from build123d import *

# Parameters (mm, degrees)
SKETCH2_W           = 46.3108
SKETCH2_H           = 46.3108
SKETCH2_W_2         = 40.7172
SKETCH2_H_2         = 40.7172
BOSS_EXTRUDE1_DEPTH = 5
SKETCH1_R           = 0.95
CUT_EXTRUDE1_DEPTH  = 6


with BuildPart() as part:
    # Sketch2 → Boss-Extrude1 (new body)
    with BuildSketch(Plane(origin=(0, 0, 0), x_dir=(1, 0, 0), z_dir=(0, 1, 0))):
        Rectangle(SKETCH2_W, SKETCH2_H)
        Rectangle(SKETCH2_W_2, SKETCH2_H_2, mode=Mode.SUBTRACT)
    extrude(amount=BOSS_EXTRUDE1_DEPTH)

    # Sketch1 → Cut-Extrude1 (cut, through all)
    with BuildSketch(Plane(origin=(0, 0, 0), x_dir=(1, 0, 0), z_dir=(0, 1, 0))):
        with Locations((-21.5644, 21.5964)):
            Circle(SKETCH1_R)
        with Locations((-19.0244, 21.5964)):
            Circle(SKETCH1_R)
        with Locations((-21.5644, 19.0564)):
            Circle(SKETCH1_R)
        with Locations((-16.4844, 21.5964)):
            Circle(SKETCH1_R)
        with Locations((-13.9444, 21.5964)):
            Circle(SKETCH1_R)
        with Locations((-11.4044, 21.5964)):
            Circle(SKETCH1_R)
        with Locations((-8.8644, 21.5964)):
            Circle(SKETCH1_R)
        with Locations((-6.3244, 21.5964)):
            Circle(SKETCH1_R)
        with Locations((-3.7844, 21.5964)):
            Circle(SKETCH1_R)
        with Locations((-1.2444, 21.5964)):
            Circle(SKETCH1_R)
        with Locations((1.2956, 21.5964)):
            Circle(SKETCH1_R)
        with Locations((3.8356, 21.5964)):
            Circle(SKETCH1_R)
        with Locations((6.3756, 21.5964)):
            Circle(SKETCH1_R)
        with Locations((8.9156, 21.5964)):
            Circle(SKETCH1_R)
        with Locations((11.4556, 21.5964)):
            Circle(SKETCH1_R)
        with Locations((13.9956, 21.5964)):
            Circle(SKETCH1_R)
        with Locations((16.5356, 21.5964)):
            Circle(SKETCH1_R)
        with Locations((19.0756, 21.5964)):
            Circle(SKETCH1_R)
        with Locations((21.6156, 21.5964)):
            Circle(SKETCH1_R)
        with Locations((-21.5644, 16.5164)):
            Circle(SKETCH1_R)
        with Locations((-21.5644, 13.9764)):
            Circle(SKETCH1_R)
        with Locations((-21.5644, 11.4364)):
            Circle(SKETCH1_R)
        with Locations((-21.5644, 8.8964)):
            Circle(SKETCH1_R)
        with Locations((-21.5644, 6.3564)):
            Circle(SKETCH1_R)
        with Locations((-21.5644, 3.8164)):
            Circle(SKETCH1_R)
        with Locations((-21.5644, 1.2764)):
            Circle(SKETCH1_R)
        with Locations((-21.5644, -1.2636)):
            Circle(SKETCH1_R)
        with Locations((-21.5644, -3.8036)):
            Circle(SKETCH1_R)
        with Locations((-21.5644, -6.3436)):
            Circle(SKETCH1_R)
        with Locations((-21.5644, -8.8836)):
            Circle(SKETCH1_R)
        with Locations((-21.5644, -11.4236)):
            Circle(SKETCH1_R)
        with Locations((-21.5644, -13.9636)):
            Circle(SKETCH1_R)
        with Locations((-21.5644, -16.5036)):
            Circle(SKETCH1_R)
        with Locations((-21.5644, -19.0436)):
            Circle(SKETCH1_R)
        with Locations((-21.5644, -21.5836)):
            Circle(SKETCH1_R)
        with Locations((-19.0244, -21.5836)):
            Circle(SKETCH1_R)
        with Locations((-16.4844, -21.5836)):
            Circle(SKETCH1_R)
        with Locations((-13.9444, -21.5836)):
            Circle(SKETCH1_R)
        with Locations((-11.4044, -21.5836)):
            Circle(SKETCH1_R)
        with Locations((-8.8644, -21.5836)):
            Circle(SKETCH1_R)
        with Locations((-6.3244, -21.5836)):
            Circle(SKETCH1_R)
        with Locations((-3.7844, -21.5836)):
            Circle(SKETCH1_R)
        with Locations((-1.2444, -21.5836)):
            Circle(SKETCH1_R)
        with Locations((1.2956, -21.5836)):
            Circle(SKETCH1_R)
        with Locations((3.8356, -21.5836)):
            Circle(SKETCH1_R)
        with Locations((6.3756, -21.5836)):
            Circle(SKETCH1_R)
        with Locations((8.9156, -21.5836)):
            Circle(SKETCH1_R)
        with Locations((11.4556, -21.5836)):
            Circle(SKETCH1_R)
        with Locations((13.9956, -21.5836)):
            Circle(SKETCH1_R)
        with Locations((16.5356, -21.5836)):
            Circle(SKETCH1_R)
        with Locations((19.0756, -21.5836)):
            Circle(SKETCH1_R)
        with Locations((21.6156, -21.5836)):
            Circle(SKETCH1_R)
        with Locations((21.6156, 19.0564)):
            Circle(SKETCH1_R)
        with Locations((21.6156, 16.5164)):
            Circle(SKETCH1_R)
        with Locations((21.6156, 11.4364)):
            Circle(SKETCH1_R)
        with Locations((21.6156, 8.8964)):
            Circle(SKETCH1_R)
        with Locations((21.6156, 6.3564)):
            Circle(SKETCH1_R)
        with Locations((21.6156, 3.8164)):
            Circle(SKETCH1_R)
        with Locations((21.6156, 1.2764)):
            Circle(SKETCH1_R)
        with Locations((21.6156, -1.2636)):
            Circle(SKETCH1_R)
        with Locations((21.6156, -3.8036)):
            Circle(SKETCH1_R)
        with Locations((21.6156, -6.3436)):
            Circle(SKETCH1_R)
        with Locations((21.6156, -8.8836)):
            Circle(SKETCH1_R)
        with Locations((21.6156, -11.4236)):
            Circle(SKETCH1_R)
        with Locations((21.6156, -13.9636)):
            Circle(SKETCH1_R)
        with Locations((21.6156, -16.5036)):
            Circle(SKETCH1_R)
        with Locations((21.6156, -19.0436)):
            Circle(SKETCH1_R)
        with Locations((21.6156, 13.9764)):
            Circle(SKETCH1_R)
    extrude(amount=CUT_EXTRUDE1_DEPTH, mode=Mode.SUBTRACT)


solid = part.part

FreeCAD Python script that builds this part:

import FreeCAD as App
import Part
import Sketcher
Q = App.Units.Quantity

doc = App.newDocument("Part")
params = doc.addObject("Spreadsheet::Sheet", "Params")
for row, (alias, value) in enumerate([
    ("pad1_length", "5 mm"),
    ("sketch2_diameter", "1.9 mm"),
], start=1):
    params.set(f"A{row}", alias)
    params.set(f"B{row}", "=" + value)
    params.setAlias(f"B{row}", alias)

body = doc.addObject("PartDesign::Body", "Body")

sketch1 = body.newObject("Sketcher::SketchObject", "Sketch")
sketch1.AttachmentSupport = (doc.getObject("XZ_Plane"), [""])
sketch1.MapMode = "FlatFace"
sketch1.addGeometry([
    Part.LineSegment(App.Vector(-23, -23, 0), App.Vector(-23, 23, 0)),
    Part.LineSegment(App.Vector(-23, 23, 0), App.Vector(23, 23, 0)),
    Part.LineSegment(App.Vector(23, 23, 0), App.Vector(23, -23, 0)),
    Part.LineSegment(App.Vector(23, -23, 0), App.Vector(-23, -23, 0)),
    Part.LineSegment(App.Vector(20, 20, 0), App.Vector(-20, 20, 0)),
    Part.LineSegment(App.Vector(-20, 20, 0), App.Vector(-20, -20, 0)),
    Part.LineSegment(App.Vector(-20, -20, 0), App.Vector(20, -20, 0)),
    Part.LineSegment(App.Vector(20, -20, 0), App.Vector(20, 20, 0)),
], False)
sketch1.addConstraint([
    Sketcher.Constraint("Coincident", 0, 2, 1, 1),
    Sketcher.Constraint("Coincident", 1, 2, 2, 1),
    Sketcher.Constraint("Coincident", 2, 2, 3, 1),
    Sketcher.Constraint("Coincident", 3, 2, 0, 1),
    Sketcher.Constraint("Coincident", 4, 2, 5, 1),
    Sketcher.Constraint("Coincident", 5, 2, 6, 1),
    Sketcher.Constraint("Coincident", 6, 2, 7, 1),
    Sketcher.Constraint("Coincident", 7, 2, 4, 1),
    Sketcher.Constraint("Vertical", 0),
    Sketcher.Constraint("Horizontal", 1),
    Sketcher.Constraint("Vertical", 2),
    Sketcher.Constraint("Horizontal", 3),
    Sketcher.Constraint("Horizontal", 4),
    Sketcher.Constraint("Vertical", 5),
    Sketcher.Constraint("Horizontal", 6),
    Sketcher.Constraint("Vertical", 7),
    Sketcher.Constraint("Symmetric", 0, 2, 2, 2, -1, 1),
    Sketcher.Constraint("Symmetric", 4, 2, 6, 2, -1, 1),
    Sketcher.Constraint("Equal", 3, 0),
    Sketcher.Constraint("Equal", 6, 5),
    Sketcher.Constraint("DistanceX", 1, 1, 1, 2, Q("46.3108 mm")),
    Sketcher.Constraint("DistanceX", 4, 2, 4, 1, Q("40.7172 mm")),
])
pad1 = body.newObject("PartDesign::Pad", "Pad")
pad1.Profile = sketch1
pad1.setExpression("Length", "Params.pad1_length")
pad1.Reversed = True

sketch2 = body.newObject("Sketcher::SketchObject", "Sketch001")
sketch2.AttachmentSupport = (doc.getObject("XZ_Plane"), [""])
sketch2.MapMode = "FlatFace"
sketch2.addGeometry([
    Part.Circle(App.Vector(-21.6, -21.6, 0), App.Vector(0, 0, 1), 0.9),
    Part.Circle(App.Vector(-19, -21.6, 0), App.Vector(0, 0, 1), 0.9),
    Part.Circle(App.Vector(-21.6, -19.1, 0), App.Vector(0, 0, 1), 0.9),
    Part.Circle(App.Vector(-16.5, -21.6, 0), App.Vector(0, 0, 1), 0.9),
    Part.Circle(App.Vector(-13.9, -21.6, 0), App.Vector(0, 0, 1), 0.9),
    Part.Circle(App.Vector(-11.4, -21.6, 0), App.Vector(0, 0, 1), 0.9),
    Part.Circle(App.Vector(-8.9, -21.6, 0), App.Vector(0, 0, 1), 0.9),
    Part.Circle(App.Vector(-6.3, -21.6, 0), App.Vector(0, 0, 1), 0.9),
    Part.Circle(App.Vector(-3.8, -21.6, 0), App.Vector(0, 0, 1), 0.9),
    Part.Circle(App.Vector(-1.2, -21.6, 0), App.Vector(0, 0, 1), 0.9),
    Part.Circle(App.Vector(1.3, -21.6, 0), App.Vector(0, 0, 1), 0.9),
    Part.Circle(App.Vector(3.8, -21.6, 0), App.Vector(0, 0, 1), 0.9),
    Part.Circle(App.Vector(6.4, -21.6, 0), App.Vector(0, 0, 1), 0.9),
    Part.Circle(App.Vector(8.9, -21.6, 0), App.Vector(0, 0, 1), 0.9),
    Part.Circle(App.Vector(11.5, -21.6, 0), App.Vector(0, 0, 1), 0.9),
    Part.Circle(App.Vector(14, -21.6, 0), App.Vector(0, 0, 1), 0.9),
    Part.Circle(App.Vector(16.5, -21.6, 0), App.Vector(0, 0, 1), 0.9),
    Part.Circle(App.Vector(19.1, -21.6, 0), App.Vector(0, 0, 1), 0.9),
    Part.Circle(App.Vector(21.6, -21.6, 0), App.Vector(0, 0, 1), 0.9),
    Part.Circle(App.Vector(-21.6, -16.5, 0), App.Vector(0, 0, 1), 0.9),
    Part.Circle(App.Vector(-21.6, -14, 0), App.Vector(0, 0, 1), 0.9),
    Part.Circle(App.Vector(-21.6, -11.4, 0), App.Vector(0, 0, 1), 0.9),
    Part.Circle(App.Vector(-21.6, -8.9, 0), App.Vector(0, 0, 1), 0.9),
    Part.Circle(App.Vector(-21.6, -6.4, 0), App.Vector(0, 0, 1), 0.9),
    Part.Circle(App.Vector(-21.6, -3.8, 0), App.Vector(0, 0, 1), 0.9),
    Part.Circle(App.Vector(-21.6, -1.3, 0), App.Vector(0, 0, 1), 0.9),
    Part.Circle(App.Vector(-21.6, 1.3, 0), App.Vector(0, 0, 1), 0.9),
    Part.Circle(App.Vector(-21.6, 3.8, 0), App.Vector(0, 0, 1), 0.9),
    Part.Circle(App.Vector(-21.6, 6.3, 0), App.Vector(0, 0, 1), 0.9),
    Part.Circle(App.Vector(-21.6, 8.9, 0), App.Vector(0, 0, 1), 0.9),
    Part.Circle(App.Vector(-21.6, 11.4, 0), App.Vector(0, 0, 1), 0.9),
    Part.Circle(App.Vector(-21.6, 14, 0), App.Vector(0, 0, 1), 0.9),
    Part.Circle(App.Vector(-21.6, 16.5, 0), App.Vector(0, 0, 1), 0.9),
    Part.Circle(App.Vector(-21.6, 19, 0), App.Vector(0, 0, 1), 0.9),
    Part.Circle(App.Vector(-21.6, 21.6, 0), App.Vector(0, 0, 1), 0.9),
    Part.Circle(App.Vector(-19, 21.6, 0), App.Vector(0, 0, 1), 0.9),
    Part.Circle(App.Vector(-16.5, 21.6, 0), App.Vector(0, 0, 1), 0.9),
    Part.Circle(App.Vector(-13.9, 21.6, 0), App.Vector(0, 0, 1), 0.9),
    Part.Circle(App.Vector(-11.4, 21.6, 0), App.Vector(0, 0, 1), 0.9),
    Part.Circle(App.Vector(-8.9, 21.6, 0), App.Vector(0, 0, 1), 0.9),
    Part.Circle(App.Vector(-6.3, 21.6, 0), App.Vector(0, 0, 1), 0.9),
    Part.Circle(App.Vector(-3.8, 21.6, 0), App.Vector(0, 0, 1), 0.9),
    Part.Circle(App.Vector(-1.2, 21.6, 0), App.Vector(0, 0, 1), 0.9),
    Part.Circle(App.Vector(1.3, 21.6, 0), App.Vector(0, 0, 1), 0.9),
    Part.Circle(App.Vector(3.8, 21.6, 0), App.Vector(0, 0, 1), 0.9),
    Part.Circle(App.Vector(6.4, 21.6, 0), App.Vector(0, 0, 1), 0.9),
    Part.Circle(App.Vector(8.9, 21.6, 0), App.Vector(0, 0, 1), 0.9),
    Part.Circle(App.Vector(11.5, 21.6, 0), App.Vector(0, 0, 1), 0.9),
    Part.Circle(App.Vector(14, 21.6, 0), App.Vector(0, 0, 1), 0.9),
    Part.Circle(App.Vector(16.5, 21.6, 0), App.Vector(0, 0, 1), 0.9),
    Part.Circle(App.Vector(19.1, 21.6, 0), App.Vector(0, 0, 1), 0.9),
    Part.Circle(App.Vector(21.6, 21.6, 0), App.Vector(0, 0, 1), 0.9),
    Part.Circle(App.Vector(21.6, -19.1, 0), App.Vector(0, 0, 1), 0.9),
    Part.Circle(App.Vector(21.6, -16.5, 0), App.Vector(0, 0, 1), 0.9),
    Part.Circle(App.Vector(21.6, -11.4, 0), App.Vector(0, 0, 1), 0.9),
    Part.Circle(App.Vector(21.6, -8.9, 0), App.Vector(0, 0, 1), 0.9),
    Part.Circle(App.Vector(21.6, -6.4, 0), App.Vector(0, 0, 1), 0.9),
    Part.Circle(App.Vector(21.6, -3.8, 0), App.Vector(0, 0, 1), 0.9),
    Part.Circle(App.Vector(21.6, -1.3, 0), App.Vector(0, 0, 1), 0.9),
    Part.Circle(App.Vector(21.6, 1.3, 0), App.Vector(0, 0, 1), 0.9),
    Part.Circle(App.Vector(21.6, 3.8, 0), App.Vector(0, 0, 1), 0.9),
    Part.Circle(App.Vector(21.6, 6.3, 0), App.Vector(0, 0, 1), 0.9),
    Part.Circle(App.Vector(21.6, 8.9, 0), App.Vector(0, 0, 1), 0.9),
    Part.Circle(App.Vector(21.6, 11.4, 0), App.Vector(0, 0, 1), 0.9),
    Part.Circle(App.Vector(21.6, 14, 0), App.Vector(0, 0, 1), 0.9),
    Part.Circle(App.Vector(21.6, 16.5, 0), App.Vector(0, 0, 1), 0.9),
    Part.Circle(App.Vector(21.6, 19, 0), App.Vector(0, 0, 1), 0.9),
    Part.Circle(App.Vector(21.6, -14, 0), App.Vector(0, 0, 1), 0.9),
], False)
sketch2.addConstraint([
    Sketcher.Constraint("Equal", 0, 1),
    Sketcher.Constraint("Equal", 1, 2),
    Sketcher.Constraint("Equal", 2, 3),
    Sketcher.Constraint("Equal", 3, 4),
    Sketcher.Constraint("Equal", 4, 5),
    Sketcher.Constraint("Equal", 5, 6),
    Sketcher.Constraint("Equal", 6, 7),
    Sketcher.Constraint("Equal", 7, 8),
    Sketcher.Constraint("Equal", 8, 9),
    Sketcher.Constraint("Equal", 9, 10),
    Sketcher.Constraint("Equal", 10, 11),
    Sketcher.Constraint("Equal", 11, 12),
    Sketcher.Constraint("Equal", 12, 13),
    Sketcher.Constraint("Equal", 13, 14),
    Sketcher.Constraint("Equal", 14, 15),
    Sketcher.Constraint("Equal", 15, 16),
    Sketcher.Constraint("Equal", 16, 17),
    Sketcher.Constraint("Equal", 17, 18),
    Sketcher.Constraint("Equal", 18, 19),
    Sketcher.Constraint("Equal", 19, 20),
    Sketcher.Constraint("Equal", 20, 21),
    Sketcher.Constraint("Equal", 21, 22),
    Sketcher.Constraint("Equal", 22, 23),
    Sketcher.Constraint("Equal", 23, 24),
    Sketcher.Constraint("Equal", 24, 25),
    Sketcher.Constraint("Equal", 25, 26),
    Sketcher.Constraint("Equal", 26, 27),
    Sketcher.Constraint("Equal", 27, 28),
    Sketcher.Constraint("Equal", 28, 29),
    Sketcher.Constraint("Equal", 29, 30),
    Sketcher.Constraint("Equal", 30, 31),
    Sketcher.Constraint("Equal", 31, 32),
    Sketcher.Constraint("Equal", 32, 33),
    Sketcher.Constraint("Equal", 33, 34),
    Sketcher.Constraint("Equal", 34, 35),
    Sketcher.Constraint("Equal", 35, 36),
    Sketcher.Constraint("Equal", 36, 37),
    Sketcher.Constraint("Equal", 37, 38),
    Sketcher.Constraint("Equal", 38, 39),
    Sketcher.Constraint("Equal", 39, 40),
    Sketcher.Constraint("Equal", 40, 41),
    Sketcher.Constraint("Equal", 41, 42),
    Sketcher.Constraint("Equal", 42, 43),
    Sketcher.Constraint("Equal", 43, 44),
    Sketcher.Constraint("Equal", 44, 45),
    Sketcher.Constraint("Equal", 45, 46),
    Sketcher.Constraint("Equal", 46, 47),
    Sketcher.Constraint("Equal", 47, 48),
    Sketcher.Constraint("Equal", 48, 49),
    Sketcher.Constraint("Equal", 49, 50),
    Sketcher.Constraint("Equal", 50, 51),
    Sketcher.Constraint("Equal", 51, 52),
    Sketcher.Constraint("Equal", 52, 53),
    Sketcher.Constraint("Equal", 53, 54),
    Sketcher.Constraint("Equal", 54, 55),
    Sketcher.Constraint("Equal", 55, 56),
    Sketcher.Constraint("Equal", 56, 57),
    Sketcher.Constraint("Equal", 57, 58),
    Sketcher.Constraint("Equal", 58, 59),
    Sketcher.Constraint("Equal", 59, 60),
    Sketcher.Constraint("Equal", 60, 61),
    Sketcher.Constraint("Equal", 61, 62),
    Sketcher.Constraint("Equal", 62, 63),
    Sketcher.Constraint("Equal", 63, 64),
    Sketcher.Constraint("Equal", 64, 65),
    Sketcher.Constraint("Equal", 65, 66),
    Sketcher.Constraint("Equal", 66, 67),
    Sketcher.Constraint("Horizontal", 0, 3, 1, 3),
    Sketcher.Constraint("Horizontal", 1, 3, 3, 3),
    Sketcher.Constraint("Horizontal", 3, 3, 4, 3),
    Sketcher.Constraint("Horizontal", 4, 3, 5, 3),
    Sketcher.Constraint("Horizontal", 5, 3, 6, 3),
    Sketcher.Constraint("Horizontal", 6, 3, 7, 3),
    Sketcher.Constraint("Horizontal", 7, 3, 8, 3),
    Sketcher.Constraint("Horizontal", 8, 3, 9, 3),
    Sketcher.Constraint("Horizontal", 9, 3, 10, 3),
    Sketcher.Constraint("Horizontal", 10, 3, 11, 3),
    Sketcher.Constraint("Horizontal", 11, 3, 12, 3),
    Sketcher.Constraint("Horizontal", 12, 3, 13, 3),
    Sketcher.Constraint("Horizontal", 13, 3, 14, 3),
    Sketcher.Constraint("Horizontal", 14, 3, 15, 3),
    Sketcher.Constraint("Horizontal", 15, 3, 16, 3),
    Sketcher.Constraint("Horizontal", 16, 3, 17, 3),
    Sketcher.Constraint("Horizontal", 17, 3, 18, 3),
    Sketcher.Constraint("Horizontal", 34, 3, 35, 3),
    Sketcher.Constraint("Horizontal", 35, 3, 36, 3),
    Sketcher.Constraint("Horizontal", 36, 3, 37, 3),
    Sketcher.Constraint("Horizontal", 37, 3, 38, 3),
    Sketcher.Constraint("Horizontal", 38, 3, 39, 3),
    Sketcher.Constraint("Horizontal", 39, 3, 40, 3),
    Sketcher.Constraint("Horizontal", 40, 3, 41, 3),
    Sketcher.Constraint("Horizontal", 41, 3, 42, 3),
    Sketcher.Constraint("Horizontal", 42, 3, 43, 3),
    Sketcher.Constraint("Horizontal", 43, 3, 44, 3),
    Sketcher.Constraint("Horizontal", 44, 3, 45, 3),
    Sketcher.Constraint("Horizontal", 45, 3, 46, 3),
    Sketcher.Constraint("Horizontal", 46, 3, 47, 3),
    Sketcher.Constraint("Horizontal", 47, 3, 48, 3),
    Sketcher.Constraint("Horizontal", 48, 3, 49, 3),
    Sketcher.Constraint("Horizontal", 49, 3, 50, 3),
    Sketcher.Constraint("Horizontal", 50, 3, 51, 3),
    Sketcher.Constraint("Horizontal", 2, 3, 52, 3),
    Sketcher.Constraint("Horizontal", 19, 3, 53, 3),
    Sketcher.Constraint("Horizontal", 21, 3, 54, 3),
    Sketcher.Constraint("Horizontal", 22, 3, 55, 3),
    Sketcher.Constraint("Horizontal", 23, 3, 56, 3),
    Sketcher.Constraint("Horizontal", 24, 3, 57, 3),
    Sketcher.Constraint("Horizontal", 25, 3, 58, 3),
    Sketcher.Constraint("Horizontal", 26, 3, 59, 3),
    Sketcher.Constraint("Horizontal", 27, 3, 60, 3),
    Sketcher.Constraint("Horizontal", 28, 3, 61, 3),
    Sketcher.Constraint("Horizontal", 29, 3, 62, 3),
    Sketcher.Constraint("Horizontal", 30, 3, 63, 3),
    Sketcher.Constraint("Horizontal", 31, 3, 64, 3),
    Sketcher.Constraint("Horizontal", 32, 3, 65, 3),
    Sketcher.Constraint("Horizontal", 33, 3, 66, 3),
    Sketcher.Constraint("Horizontal", 20, 3, 67, 3),
    Sketcher.Constraint("Vertical", 0, 3, 2, 3),
    Sketcher.Constraint("Vertical", 2, 3, 19, 3),
    Sketcher.Constraint("Vertical", 19, 3, 20, 3),
    Sketcher.Constraint("Vertical", 20, 3, 21, 3),
    Sketcher.Constraint("Vertical", 21, 3, 22, 3),
    Sketcher.Constraint("Vertical", 22, 3, 23, 3),
    Sketcher.Constraint("Vertical", 23, 3, 24, 3),
    Sketcher.Constraint("Vertical", 24, 3, 25, 3),
    Sketcher.Constraint("Vertical", 25, 3, 26, 3),
    Sketcher.Constraint("Vertical", 26, 3, 27, 3),
    Sketcher.Constraint("Vertical", 27, 3, 28, 3),
    Sketcher.Constraint("Vertical", 28, 3, 29, 3),
    Sketcher.Constraint("Vertical", 29, 3, 30, 3),
    Sketcher.Constraint("Vertical", 30, 3, 31, 3),
    Sketcher.Constraint("Vertical", 31, 3, 32, 3),
    Sketcher.Constraint("Vertical", 32, 3, 33, 3),
    Sketcher.Constraint("Vertical", 33, 3, 34, 3),
    Sketcher.Constraint("Vertical", 1, 3, 35, 3),
    Sketcher.Constraint("Vertical", 3, 3, 36, 3),
    Sketcher.Constraint("Vertical", 4, 3, 37, 3),
    Sketcher.Constraint("Vertical", 5, 3, 38, 3),
    Sketcher.Constraint("Vertical", 6, 3, 39, 3),
    Sketcher.Constraint("Vertical", 7, 3, 40, 3),
    Sketcher.Constraint("Vertical", 8, 3, 41, 3),
    Sketcher.Constraint("Vertical", 9, 3, 42, 3),
    Sketcher.Constraint("Vertical", 10, 3, 43, 3),
    Sketcher.Constraint("Vertical", 11, 3, 44, 3),
    Sketcher.Constraint("Vertical", 12, 3, 45, 3),
    Sketcher.Constraint("Vertical", 13, 3, 46, 3),
    Sketcher.Constraint("Vertical", 14, 3, 47, 3),
    Sketcher.Constraint("Vertical", 15, 3, 48, 3),
    Sketcher.Constraint("Vertical", 16, 3, 49, 3),
    Sketcher.Constraint("Vertical", 17, 3, 50, 3),
    Sketcher.Constraint("Vertical", 18, 3, 51, 3),
    Sketcher.Constraint("Vertical", 51, 3, 52, 3),
    Sketcher.Constraint("Vertical", 52, 3, 53, 3),
    Sketcher.Constraint("Vertical", 53, 3, 54, 3),
    Sketcher.Constraint("Vertical", 54, 3, 55, 3),
    Sketcher.Constraint("Vertical", 55, 3, 56, 3),
    Sketcher.Constraint("Vertical", 56, 3, 57, 3),
    Sketcher.Constraint("Vertical", 57, 3, 58, 3),
    Sketcher.Constraint("Vertical", 58, 3, 59, 3),
    Sketcher.Constraint("Vertical", 59, 3, 60, 3),
    Sketcher.Constraint("Vertical", 60, 3, 61, 3),
    Sketcher.Constraint("Vertical", 61, 3, 62, 3),
    Sketcher.Constraint("Vertical", 62, 3, 63, 3),
    Sketcher.Constraint("Vertical", 63, 3, 64, 3),
    Sketcher.Constraint("Vertical", 64, 3, 65, 3),
    Sketcher.Constraint("Vertical", 65, 3, 66, 3),
    Sketcher.Constraint("Vertical", 66, 3, 67, 3),
    Sketcher.Constraint("Diameter", 0, Q("1.9 mm")),
    Sketcher.Constraint("DistanceX", 0, 3, -1, 1, Q("21.5644 mm")),
    Sketcher.Constraint("DistanceY", 0, 3, -1, 1, Q("21.5964 mm")),
    Sketcher.Constraint("DistanceX", 1, 3, -1, 1, Q("19.0244 mm")),
    Sketcher.Constraint("DistanceY", 2, 3, -1, 1, Q("19.0564 mm")),
    Sketcher.Constraint("DistanceX", 3, 3, -1, 1, Q("16.4844 mm")),
    Sketcher.Constraint("DistanceX", 4, 3, -1, 1, Q("13.9444 mm")),
    Sketcher.Constraint("DistanceX", 5, 3, -1, 1, Q("11.4044 mm")),
    Sketcher.Constraint("DistanceX", 6, 3, -1, 1, Q("8.8644 mm")),
    Sketcher.Constraint("DistanceX", 7, 3, -1, 1, Q("6.3244 mm")),
    Sketcher.Constraint("DistanceX", 8, 3, -1, 1, Q("3.7844 mm")),
    Sketcher.Constraint("DistanceX", 9, 3, -1, 1, Q("1.2444 mm")),
    Sketcher.Constraint("DistanceX", -1, 1, 10, 3, Q("1.2956 mm")),
    Sketcher.Constraint("DistanceX", -1, 1, 11, 3, Q("3.8356 mm")),
    Sketcher.Constraint("DistanceX", -1, 1, 12, 3, Q("6.3756 mm")),
    Sketcher.Constraint("DistanceX", -1, 1, 13, 3, Q("8.9156 mm")),
    Sketcher.Constraint("DistanceX", -1, 1, 14, 3, Q("11.4556 mm")),
    Sketcher.Constraint("DistanceX", -1, 1, 15, 3, Q("13.9956 mm")),
    Sketcher.Constraint("DistanceX", -1, 1, 16, 3, Q("16.5356 mm")),
    Sketcher.Constraint("DistanceX", -1, 1, 17, 3, Q("19.0756 mm")),
    Sketcher.Constraint("DistanceX", -1, 1, 18, 3, Q("21.6156 mm")),
    Sketcher.Constraint("DistanceY", 19, 3, -1, 1, Q("16.5164 mm")),
    Sketcher.Constraint("DistanceY", 20, 3, -1, 1, Q("13.9764 mm")),
    Sketcher.Constraint("DistanceY", 21, 3, -1, 1, Q("11.4364 mm")),
    Sketcher.Constraint("DistanceY", 22, 3, -1, 1, Q("8.8964 mm")),
    Sketcher.Constraint("DistanceY", 23, 3, -1, 1, Q("6.3564 mm")),
    Sketcher.Constraint("DistanceY", 24, 3, -1, 1, Q("3.8164 mm")),
    Sketcher.Constraint("DistanceY", 25, 3, -1, 1, Q("1.2764 mm")),
    Sketcher.Constraint("DistanceY", -1, 1, 26, 3, Q("1.2636 mm")),
    Sketcher.Constraint("DistanceY", -1, 1, 27, 3, Q("3.8036 mm")),
    Sketcher.Constraint("DistanceY", -1, 1, 28, 3, Q("6.3436 mm")),
    Sketcher.Constraint("DistanceY", -1, 1, 29, 3, Q("8.8836 mm")),
    Sketcher.Constraint("DistanceY", -1, 1, 30, 3, Q("11.4236 mm")),
    Sketcher.Constraint("DistanceY", -1, 1, 31, 3, Q("13.9636 mm")),
    Sketcher.Constraint("DistanceY", -1, 1, 32, 3, Q("16.5036 mm")),
    Sketcher.Constraint("DistanceY", -1, 1, 33, 3, Q("19.0436 mm")),
    Sketcher.Constraint("DistanceY", -1, 1, 34, 3, Q("21.5836 mm")),
])
sketch2.setExpression("Constraints[167]", "Params.sketch2_diameter")
pocket1 = body.newObject("PartDesign::Pocket", "Pocket")
pocket1.Profile = sketch2
pocket1.Type = "ThroughAll"

doc.recompute()
